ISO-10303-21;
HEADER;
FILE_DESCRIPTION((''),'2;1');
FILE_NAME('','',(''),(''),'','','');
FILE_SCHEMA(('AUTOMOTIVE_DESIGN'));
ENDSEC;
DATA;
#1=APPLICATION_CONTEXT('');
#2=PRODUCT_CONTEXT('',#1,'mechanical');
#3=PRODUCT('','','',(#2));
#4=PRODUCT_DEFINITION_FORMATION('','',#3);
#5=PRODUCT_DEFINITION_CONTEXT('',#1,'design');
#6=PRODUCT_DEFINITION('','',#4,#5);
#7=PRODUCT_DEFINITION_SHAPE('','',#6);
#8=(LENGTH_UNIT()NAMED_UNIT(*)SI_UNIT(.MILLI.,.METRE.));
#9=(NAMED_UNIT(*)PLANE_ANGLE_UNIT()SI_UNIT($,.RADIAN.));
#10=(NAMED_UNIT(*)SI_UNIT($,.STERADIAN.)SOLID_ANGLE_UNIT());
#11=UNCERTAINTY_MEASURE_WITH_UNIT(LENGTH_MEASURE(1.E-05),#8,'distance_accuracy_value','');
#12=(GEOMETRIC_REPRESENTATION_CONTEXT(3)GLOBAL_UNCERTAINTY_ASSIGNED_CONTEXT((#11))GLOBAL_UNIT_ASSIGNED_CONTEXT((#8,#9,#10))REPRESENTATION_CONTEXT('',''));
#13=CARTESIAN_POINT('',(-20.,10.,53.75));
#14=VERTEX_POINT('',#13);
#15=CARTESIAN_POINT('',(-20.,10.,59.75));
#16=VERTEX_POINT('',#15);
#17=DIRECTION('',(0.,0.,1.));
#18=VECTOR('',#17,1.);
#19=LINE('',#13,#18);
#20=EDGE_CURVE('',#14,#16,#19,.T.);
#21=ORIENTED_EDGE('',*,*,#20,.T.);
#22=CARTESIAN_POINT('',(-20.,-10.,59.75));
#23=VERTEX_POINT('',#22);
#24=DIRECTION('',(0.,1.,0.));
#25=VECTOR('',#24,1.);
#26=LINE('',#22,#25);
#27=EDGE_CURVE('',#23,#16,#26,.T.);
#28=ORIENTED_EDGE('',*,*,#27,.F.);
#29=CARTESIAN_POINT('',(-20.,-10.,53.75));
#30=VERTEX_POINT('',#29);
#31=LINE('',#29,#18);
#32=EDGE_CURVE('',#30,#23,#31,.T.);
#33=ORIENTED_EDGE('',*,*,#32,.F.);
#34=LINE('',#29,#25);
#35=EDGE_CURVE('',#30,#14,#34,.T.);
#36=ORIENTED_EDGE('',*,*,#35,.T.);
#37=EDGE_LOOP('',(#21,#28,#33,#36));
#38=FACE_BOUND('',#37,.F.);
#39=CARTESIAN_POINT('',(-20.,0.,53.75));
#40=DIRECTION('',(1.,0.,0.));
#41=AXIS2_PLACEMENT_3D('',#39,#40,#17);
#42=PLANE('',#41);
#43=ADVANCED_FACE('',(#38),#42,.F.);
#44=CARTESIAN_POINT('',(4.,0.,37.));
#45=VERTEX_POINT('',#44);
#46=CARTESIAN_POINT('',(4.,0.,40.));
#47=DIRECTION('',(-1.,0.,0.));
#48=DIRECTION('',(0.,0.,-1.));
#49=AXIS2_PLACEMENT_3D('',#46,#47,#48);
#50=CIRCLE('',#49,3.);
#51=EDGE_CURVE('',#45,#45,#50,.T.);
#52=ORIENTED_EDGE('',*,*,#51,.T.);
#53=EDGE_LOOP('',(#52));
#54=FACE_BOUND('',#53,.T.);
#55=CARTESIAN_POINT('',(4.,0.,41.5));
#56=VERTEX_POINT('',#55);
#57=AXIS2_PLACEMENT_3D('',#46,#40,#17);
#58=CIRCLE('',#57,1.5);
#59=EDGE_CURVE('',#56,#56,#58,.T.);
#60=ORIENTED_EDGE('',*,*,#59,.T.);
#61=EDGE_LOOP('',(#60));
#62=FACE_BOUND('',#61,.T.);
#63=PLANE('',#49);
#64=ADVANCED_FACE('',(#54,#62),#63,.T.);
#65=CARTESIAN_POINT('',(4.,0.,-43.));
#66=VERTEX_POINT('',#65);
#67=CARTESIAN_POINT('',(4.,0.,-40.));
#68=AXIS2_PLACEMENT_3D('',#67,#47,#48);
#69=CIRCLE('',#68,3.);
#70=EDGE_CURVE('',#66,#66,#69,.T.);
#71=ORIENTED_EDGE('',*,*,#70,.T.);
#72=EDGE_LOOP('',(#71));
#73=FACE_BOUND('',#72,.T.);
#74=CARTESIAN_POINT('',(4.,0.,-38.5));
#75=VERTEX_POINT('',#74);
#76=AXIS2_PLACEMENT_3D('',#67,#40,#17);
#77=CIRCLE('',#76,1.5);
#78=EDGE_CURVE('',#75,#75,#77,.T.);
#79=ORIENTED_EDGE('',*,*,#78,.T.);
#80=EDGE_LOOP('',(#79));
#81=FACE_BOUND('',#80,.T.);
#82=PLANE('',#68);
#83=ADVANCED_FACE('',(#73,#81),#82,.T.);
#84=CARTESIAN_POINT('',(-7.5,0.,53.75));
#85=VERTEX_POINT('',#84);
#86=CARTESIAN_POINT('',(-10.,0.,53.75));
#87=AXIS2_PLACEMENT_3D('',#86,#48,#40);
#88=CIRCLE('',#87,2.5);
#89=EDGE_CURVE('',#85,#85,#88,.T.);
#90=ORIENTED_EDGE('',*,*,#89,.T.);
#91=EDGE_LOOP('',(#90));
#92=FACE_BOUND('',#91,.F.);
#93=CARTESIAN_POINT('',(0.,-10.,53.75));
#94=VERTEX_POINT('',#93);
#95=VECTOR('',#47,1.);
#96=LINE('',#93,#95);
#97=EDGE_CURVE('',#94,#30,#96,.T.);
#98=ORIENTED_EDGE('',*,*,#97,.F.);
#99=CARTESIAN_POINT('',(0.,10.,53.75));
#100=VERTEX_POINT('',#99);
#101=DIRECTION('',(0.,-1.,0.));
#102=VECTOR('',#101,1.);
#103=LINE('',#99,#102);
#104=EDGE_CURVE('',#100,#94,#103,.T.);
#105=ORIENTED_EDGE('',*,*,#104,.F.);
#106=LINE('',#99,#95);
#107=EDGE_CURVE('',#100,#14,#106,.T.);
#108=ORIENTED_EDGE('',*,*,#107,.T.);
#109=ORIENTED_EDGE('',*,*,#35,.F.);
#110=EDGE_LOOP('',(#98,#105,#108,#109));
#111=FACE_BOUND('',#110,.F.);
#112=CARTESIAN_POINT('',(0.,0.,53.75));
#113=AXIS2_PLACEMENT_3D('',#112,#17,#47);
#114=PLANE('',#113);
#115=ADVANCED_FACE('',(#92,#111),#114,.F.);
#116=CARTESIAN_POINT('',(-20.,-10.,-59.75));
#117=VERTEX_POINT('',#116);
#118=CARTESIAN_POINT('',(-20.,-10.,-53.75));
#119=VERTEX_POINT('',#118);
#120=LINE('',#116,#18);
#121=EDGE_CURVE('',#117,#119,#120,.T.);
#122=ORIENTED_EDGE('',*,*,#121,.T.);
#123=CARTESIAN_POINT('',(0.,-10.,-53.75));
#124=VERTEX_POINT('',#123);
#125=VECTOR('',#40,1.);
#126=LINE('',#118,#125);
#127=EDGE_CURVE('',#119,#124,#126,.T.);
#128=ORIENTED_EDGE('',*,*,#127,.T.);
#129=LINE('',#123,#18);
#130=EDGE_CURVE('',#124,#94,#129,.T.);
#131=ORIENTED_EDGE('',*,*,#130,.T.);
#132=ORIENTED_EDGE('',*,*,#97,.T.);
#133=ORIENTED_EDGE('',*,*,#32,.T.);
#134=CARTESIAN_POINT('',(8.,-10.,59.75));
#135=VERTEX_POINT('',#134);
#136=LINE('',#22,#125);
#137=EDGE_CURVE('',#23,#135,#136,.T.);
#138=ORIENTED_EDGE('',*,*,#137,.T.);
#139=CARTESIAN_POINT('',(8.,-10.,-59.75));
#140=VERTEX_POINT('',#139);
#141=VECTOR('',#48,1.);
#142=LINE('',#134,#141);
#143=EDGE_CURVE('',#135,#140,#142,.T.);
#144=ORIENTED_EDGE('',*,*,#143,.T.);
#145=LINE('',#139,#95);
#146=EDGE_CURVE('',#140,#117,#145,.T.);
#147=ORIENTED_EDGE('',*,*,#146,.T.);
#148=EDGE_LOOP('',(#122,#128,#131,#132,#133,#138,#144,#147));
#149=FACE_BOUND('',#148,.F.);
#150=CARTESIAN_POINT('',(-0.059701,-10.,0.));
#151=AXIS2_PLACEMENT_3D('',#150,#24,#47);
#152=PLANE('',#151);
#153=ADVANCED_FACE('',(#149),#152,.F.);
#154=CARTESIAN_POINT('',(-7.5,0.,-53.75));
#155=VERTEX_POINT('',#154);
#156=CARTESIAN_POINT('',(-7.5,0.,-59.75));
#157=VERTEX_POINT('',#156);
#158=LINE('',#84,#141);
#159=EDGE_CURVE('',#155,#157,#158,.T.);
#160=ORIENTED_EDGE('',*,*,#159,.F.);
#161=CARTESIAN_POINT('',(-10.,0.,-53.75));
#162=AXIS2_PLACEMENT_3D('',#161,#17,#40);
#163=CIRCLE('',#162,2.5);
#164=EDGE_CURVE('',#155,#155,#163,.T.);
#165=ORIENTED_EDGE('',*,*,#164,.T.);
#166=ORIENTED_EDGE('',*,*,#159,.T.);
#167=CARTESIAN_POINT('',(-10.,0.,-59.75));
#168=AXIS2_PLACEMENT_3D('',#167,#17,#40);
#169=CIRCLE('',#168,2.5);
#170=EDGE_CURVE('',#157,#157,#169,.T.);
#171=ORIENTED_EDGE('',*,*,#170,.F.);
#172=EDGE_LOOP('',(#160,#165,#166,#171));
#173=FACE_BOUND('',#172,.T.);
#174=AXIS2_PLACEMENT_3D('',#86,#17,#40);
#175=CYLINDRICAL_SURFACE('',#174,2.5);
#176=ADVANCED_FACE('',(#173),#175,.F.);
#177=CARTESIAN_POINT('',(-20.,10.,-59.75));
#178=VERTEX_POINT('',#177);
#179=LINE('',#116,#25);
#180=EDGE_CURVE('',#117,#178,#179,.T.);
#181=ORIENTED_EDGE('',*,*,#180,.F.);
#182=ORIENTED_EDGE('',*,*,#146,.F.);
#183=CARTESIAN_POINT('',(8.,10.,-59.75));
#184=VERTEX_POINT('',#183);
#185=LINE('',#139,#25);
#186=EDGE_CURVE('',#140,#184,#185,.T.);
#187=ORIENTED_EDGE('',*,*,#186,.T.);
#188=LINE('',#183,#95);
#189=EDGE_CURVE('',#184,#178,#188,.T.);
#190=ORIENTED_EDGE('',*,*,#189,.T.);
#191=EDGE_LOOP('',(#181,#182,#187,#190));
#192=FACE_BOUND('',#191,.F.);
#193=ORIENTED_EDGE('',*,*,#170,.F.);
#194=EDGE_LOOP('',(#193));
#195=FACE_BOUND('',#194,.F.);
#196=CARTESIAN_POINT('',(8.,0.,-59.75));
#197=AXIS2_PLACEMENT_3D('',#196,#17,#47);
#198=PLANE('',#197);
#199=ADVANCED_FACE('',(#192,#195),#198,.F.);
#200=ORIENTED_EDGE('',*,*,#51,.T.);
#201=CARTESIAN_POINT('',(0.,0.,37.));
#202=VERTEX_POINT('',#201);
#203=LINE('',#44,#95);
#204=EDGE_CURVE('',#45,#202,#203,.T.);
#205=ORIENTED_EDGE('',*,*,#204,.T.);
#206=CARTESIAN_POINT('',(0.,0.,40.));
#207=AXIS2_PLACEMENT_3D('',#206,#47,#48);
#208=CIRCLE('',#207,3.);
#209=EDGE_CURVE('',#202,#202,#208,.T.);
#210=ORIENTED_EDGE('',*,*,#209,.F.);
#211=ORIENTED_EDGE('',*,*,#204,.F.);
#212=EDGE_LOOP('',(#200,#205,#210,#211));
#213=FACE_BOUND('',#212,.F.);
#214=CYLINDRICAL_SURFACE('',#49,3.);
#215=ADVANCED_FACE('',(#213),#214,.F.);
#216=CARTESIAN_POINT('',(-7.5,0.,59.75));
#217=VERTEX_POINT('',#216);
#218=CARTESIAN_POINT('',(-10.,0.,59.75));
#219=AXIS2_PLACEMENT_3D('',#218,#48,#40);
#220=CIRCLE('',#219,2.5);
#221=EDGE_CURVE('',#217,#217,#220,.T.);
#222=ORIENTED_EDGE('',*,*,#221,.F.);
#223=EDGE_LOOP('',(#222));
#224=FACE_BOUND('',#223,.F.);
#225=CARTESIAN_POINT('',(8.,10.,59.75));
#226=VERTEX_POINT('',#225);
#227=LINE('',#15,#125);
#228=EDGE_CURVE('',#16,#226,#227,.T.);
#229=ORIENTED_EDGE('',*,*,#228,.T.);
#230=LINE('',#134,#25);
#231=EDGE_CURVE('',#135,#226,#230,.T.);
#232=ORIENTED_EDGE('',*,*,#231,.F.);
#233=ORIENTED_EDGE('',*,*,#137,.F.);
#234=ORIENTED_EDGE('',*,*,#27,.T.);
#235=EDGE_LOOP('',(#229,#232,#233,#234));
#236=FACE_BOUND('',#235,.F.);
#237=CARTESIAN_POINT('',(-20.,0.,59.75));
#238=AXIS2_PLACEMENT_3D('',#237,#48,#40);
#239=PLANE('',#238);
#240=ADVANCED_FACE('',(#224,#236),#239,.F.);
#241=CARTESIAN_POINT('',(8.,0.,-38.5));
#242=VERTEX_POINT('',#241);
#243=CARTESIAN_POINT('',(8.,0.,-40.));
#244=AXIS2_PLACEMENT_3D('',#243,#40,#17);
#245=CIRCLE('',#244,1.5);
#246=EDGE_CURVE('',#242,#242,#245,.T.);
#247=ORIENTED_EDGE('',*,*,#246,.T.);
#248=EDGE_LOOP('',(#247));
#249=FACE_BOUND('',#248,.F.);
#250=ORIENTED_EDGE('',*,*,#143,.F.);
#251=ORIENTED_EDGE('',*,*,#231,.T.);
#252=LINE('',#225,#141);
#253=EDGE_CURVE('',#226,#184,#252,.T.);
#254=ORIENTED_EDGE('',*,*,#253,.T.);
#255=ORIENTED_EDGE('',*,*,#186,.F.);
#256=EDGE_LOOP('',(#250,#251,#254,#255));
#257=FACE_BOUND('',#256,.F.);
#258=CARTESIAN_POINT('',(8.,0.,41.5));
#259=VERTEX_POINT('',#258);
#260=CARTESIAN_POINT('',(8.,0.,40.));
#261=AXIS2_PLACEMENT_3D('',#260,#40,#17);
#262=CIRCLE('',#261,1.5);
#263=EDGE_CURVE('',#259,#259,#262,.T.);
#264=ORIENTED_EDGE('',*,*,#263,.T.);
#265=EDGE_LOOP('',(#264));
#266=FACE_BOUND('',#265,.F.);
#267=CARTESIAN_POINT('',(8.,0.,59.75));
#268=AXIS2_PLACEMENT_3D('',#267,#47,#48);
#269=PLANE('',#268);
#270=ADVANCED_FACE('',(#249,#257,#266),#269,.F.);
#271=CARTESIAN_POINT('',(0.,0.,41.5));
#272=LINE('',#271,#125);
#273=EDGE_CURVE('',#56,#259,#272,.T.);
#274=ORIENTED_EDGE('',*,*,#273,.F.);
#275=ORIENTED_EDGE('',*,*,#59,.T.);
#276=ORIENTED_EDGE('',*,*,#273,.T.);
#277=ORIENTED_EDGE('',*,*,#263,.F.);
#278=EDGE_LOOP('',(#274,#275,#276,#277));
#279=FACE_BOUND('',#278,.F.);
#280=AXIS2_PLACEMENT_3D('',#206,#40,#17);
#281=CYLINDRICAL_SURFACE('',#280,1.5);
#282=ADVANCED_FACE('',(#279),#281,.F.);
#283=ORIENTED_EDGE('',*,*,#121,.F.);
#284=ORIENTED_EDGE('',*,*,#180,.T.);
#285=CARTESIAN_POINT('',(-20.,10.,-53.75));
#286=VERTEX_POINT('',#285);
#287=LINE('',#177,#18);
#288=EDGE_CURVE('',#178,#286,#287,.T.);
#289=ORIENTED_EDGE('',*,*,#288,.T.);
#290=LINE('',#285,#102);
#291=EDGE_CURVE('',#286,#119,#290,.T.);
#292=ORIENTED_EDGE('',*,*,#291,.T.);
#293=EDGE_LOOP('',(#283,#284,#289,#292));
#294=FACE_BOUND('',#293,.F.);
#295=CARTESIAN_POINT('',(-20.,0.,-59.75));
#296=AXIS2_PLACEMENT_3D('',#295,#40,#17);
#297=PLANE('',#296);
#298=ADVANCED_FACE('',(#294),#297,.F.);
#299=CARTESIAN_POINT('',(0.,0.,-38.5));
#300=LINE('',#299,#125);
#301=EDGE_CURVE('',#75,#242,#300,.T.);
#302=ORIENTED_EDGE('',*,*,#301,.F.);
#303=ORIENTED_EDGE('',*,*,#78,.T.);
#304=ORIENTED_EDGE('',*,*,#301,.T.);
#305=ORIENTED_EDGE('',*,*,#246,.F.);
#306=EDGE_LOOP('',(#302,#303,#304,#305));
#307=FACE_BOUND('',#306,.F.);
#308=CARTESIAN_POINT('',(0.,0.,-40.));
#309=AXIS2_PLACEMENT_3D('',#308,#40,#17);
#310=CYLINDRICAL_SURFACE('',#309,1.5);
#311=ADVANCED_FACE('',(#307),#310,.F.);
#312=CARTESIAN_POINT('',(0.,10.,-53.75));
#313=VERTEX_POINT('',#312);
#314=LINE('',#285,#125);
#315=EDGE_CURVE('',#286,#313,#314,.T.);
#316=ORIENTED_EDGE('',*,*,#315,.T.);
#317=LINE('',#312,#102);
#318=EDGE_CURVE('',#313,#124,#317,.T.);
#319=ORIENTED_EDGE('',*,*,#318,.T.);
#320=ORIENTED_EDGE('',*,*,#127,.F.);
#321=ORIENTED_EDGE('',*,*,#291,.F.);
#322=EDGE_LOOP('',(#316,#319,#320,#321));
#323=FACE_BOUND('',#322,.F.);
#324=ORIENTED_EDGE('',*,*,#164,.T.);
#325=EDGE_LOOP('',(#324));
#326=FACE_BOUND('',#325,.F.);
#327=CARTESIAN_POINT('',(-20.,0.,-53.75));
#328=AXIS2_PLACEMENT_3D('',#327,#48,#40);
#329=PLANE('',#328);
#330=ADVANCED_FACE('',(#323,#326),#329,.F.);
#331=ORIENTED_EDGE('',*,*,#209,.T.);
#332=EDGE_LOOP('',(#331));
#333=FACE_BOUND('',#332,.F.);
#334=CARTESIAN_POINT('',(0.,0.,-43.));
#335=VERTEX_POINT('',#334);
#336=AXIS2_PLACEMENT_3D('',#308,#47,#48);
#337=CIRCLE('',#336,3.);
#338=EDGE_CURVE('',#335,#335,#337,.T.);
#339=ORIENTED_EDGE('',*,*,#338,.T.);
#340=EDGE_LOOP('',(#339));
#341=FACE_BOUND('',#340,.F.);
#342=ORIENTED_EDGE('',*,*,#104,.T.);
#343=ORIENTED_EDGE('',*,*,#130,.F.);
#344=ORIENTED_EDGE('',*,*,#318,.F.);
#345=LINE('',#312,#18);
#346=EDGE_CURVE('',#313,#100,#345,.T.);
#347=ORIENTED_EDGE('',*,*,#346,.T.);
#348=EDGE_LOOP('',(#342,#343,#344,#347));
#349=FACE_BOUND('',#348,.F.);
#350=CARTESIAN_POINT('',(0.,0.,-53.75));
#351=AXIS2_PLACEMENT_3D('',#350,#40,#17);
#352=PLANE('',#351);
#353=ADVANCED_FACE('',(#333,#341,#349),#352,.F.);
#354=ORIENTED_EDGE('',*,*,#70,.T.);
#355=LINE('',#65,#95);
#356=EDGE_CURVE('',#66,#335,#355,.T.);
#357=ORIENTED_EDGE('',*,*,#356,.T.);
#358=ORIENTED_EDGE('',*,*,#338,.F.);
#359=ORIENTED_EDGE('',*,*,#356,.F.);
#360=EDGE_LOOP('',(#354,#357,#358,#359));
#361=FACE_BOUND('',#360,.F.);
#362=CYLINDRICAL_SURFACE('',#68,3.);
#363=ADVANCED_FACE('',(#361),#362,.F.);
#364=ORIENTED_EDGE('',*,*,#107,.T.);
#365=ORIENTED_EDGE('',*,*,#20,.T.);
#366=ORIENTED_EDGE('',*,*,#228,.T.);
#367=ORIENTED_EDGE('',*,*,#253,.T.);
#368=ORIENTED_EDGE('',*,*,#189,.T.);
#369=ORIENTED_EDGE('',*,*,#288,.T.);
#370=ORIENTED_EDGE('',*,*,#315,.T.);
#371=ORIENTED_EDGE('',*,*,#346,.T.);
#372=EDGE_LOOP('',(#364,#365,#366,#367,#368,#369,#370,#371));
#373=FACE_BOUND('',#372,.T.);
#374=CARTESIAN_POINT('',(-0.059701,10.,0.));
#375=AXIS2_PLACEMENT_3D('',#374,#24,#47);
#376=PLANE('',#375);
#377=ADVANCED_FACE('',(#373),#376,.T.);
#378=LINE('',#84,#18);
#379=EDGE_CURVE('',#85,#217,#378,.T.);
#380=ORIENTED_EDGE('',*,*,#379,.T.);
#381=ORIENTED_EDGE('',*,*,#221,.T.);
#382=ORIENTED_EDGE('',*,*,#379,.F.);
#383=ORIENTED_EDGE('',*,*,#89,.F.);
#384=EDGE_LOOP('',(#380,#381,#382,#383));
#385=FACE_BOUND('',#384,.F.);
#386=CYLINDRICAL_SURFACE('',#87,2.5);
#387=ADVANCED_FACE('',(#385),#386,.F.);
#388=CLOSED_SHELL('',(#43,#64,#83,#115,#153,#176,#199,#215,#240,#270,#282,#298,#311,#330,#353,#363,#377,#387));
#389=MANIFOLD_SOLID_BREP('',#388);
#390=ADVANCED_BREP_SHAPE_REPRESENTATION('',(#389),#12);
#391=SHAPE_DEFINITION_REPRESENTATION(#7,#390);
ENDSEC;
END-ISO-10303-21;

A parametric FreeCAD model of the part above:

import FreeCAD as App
import Part
import Sketcher

V = App.Vector

doc = App.newDocument("Part")
body = doc.addObject("PartDesign::Body", "Body")

# Sketch on XZ plane
sketch1 = body.newObject("Sketcher::SketchObject", "Sketch")
sketch1.AttachmentSupport = (doc.getObject("XZ_Plane"), [""])
sketch1.MapMode = "FlatFace"
sketch1.addGeometry([
    Part.LineSegment(V(-20, 53.75, 0), V(0, 53.75, 0)),  # 0
    Part.LineSegment(V(0, 53.75, 0), V(0, -53.75, 0)),  # 1
    Part.LineSegment(V(0, -53.75, 0), V(-20, -53.75, 0)),  # 2
    Part.LineSegment(V(-20, -53.75, 0), V(-20, -59.75, 0)),  # 3
    Part.LineSegment(V(-20, -59.75, 0), V(8, -59.75, 0)),  # 4
    Part.LineSegment(V(8, -59.75, 0), V(8, 59.75, 0)),  # 5
    Part.LineSegment(V(8, 59.75, 0), V(-20, 59.75, 0)),  # 6
    Part.LineSegment(V(-20, 59.75, 0), V(-20, 53.75, 0)),  # 7
], False)
sketch1.addConstraint([
    Sketcher.Constraint("Coincident", 0, 2, 1, 1),
    Sketcher.Constraint("Coincident", 1, 2, 2, 1),
    Sketcher.Constraint("Coincident", 2, 2, 3, 1),
    Sketcher.Constraint("Coincident", 3, 2, 4, 1),
    Sketcher.Constraint("Coincident", 4, 2, 5, 1),
    Sketcher.Constraint("Coincident", 5, 2, 6, 1),
    Sketcher.Constraint("Coincident", 6, 2, 7, 1),
    Sketcher.Constraint("Coincident", 7, 2, 0, 1),
    Sketcher.Constraint("Horizontal", 0),
    Sketcher.Constraint("Vertical", 1),
    Sketcher.Constraint("Horizontal", 2),
    Sketcher.Constraint("Vertical", 3),
    Sketcher.Constraint("Horizontal", 4),
    Sketcher.Constraint("Vertical", 5),
    Sketcher.Constraint("Horizontal", 6),
    Sketcher.Constraint("Vertical", 7),
    Sketcher.Constraint("Symmetric", 0, 2, 1, 2, -1, 1),
    Sketcher.Constraint("Symmetric", 3, 2, 6, 2, -1),
    Sketcher.Constraint("DistanceX", 0, 1, 0, 2, 20.0),
    Sketcher.Constraint("DistanceX", 4, 1, 4, 2, 28.0),
    Sketcher.Constraint("DistanceY", 3, 2, 3, 1, 6.0),
    Sketcher.Constraint("DistanceY", 1, 2, 1, 1, 107.5),
])
pad1 = body.newObject("PartDesign::Pad", "Pad")
pad1.Profile = sketch1
pad1.Length = 20
pad1.Midplane = True

# Sketch on YZ plane
sketch2 = body.newObject("Sketcher::SketchObject", "Sketch001")
sketch2.AttachmentSupport = (doc.getObject("YZ_Plane"), [""])
sketch2.MapMode = "FlatFace"
sketch2.addGeometry([
    Part.Circle(V(0, 40, 0), V(0, 0, 1), 1.5),
    Part.Circle(V(0, -40, 0), V(0, 0, 1), 1.5),
], False)
sketch2.addConstraint([
    Sketcher.Constraint("Equal", 0, 1),
    Sketcher.Constraint("Symmetric", 0, 3, 1, 3, -1, 1),
    Sketcher.Constraint("PointOnObject", 0, 3, -2),
    Sketcher.Constraint("Diameter", 0, 3.0),
    Sketcher.Constraint("DistanceY", -1, 1, 0, 3, 40.0),
])
doc.recompute()
hole = body.newObject("PartDesign::Hole", "Hole")
hole.Profile = sketch2
hole.ThreadType = "None"
hole.Diameter = 3
hole.DepthType = "Dimension"
hole.Depth = 25
hole.DrillPoint = "Flat"
hole.HoleCutType = "Counterbore"
hole.HoleCutDiameter = 6
hole.HoleCutDepth = 4
hole.Reversed = True

# Sketch on XY plane
sketch3 = body.newObject("Sketcher::SketchObject", "Sketch002")
sketch3.AttachmentSupport = (doc.getObject("XY_Plane"), [""])
sketch3.MapMode = "FlatFace"
sketch3.AttachmentOffset = App.Placement(V(0, 0, 53.75), App.Rotation())
sketch3.addGeometry(Part.Circle(V(-10, 0, 0), V(0, 0, 1), 2.5), False)
sketch3.addConstraint([
    Sketcher.Constraint("PointOnObject", 0, 3, -1),
    Sketcher.Constraint("Diameter", 0, 5.0),
    Sketcher.Constraint("DistanceX", 0, 3, -1, 1, 10.0),
])
pocket1 = body.newObject("PartDesign::Pocket", "Pocket")
pocket1.Profile = sketch3
pocket1.Type = "ThroughAll"
pocket1.Midplane = True

doc.recompute()
